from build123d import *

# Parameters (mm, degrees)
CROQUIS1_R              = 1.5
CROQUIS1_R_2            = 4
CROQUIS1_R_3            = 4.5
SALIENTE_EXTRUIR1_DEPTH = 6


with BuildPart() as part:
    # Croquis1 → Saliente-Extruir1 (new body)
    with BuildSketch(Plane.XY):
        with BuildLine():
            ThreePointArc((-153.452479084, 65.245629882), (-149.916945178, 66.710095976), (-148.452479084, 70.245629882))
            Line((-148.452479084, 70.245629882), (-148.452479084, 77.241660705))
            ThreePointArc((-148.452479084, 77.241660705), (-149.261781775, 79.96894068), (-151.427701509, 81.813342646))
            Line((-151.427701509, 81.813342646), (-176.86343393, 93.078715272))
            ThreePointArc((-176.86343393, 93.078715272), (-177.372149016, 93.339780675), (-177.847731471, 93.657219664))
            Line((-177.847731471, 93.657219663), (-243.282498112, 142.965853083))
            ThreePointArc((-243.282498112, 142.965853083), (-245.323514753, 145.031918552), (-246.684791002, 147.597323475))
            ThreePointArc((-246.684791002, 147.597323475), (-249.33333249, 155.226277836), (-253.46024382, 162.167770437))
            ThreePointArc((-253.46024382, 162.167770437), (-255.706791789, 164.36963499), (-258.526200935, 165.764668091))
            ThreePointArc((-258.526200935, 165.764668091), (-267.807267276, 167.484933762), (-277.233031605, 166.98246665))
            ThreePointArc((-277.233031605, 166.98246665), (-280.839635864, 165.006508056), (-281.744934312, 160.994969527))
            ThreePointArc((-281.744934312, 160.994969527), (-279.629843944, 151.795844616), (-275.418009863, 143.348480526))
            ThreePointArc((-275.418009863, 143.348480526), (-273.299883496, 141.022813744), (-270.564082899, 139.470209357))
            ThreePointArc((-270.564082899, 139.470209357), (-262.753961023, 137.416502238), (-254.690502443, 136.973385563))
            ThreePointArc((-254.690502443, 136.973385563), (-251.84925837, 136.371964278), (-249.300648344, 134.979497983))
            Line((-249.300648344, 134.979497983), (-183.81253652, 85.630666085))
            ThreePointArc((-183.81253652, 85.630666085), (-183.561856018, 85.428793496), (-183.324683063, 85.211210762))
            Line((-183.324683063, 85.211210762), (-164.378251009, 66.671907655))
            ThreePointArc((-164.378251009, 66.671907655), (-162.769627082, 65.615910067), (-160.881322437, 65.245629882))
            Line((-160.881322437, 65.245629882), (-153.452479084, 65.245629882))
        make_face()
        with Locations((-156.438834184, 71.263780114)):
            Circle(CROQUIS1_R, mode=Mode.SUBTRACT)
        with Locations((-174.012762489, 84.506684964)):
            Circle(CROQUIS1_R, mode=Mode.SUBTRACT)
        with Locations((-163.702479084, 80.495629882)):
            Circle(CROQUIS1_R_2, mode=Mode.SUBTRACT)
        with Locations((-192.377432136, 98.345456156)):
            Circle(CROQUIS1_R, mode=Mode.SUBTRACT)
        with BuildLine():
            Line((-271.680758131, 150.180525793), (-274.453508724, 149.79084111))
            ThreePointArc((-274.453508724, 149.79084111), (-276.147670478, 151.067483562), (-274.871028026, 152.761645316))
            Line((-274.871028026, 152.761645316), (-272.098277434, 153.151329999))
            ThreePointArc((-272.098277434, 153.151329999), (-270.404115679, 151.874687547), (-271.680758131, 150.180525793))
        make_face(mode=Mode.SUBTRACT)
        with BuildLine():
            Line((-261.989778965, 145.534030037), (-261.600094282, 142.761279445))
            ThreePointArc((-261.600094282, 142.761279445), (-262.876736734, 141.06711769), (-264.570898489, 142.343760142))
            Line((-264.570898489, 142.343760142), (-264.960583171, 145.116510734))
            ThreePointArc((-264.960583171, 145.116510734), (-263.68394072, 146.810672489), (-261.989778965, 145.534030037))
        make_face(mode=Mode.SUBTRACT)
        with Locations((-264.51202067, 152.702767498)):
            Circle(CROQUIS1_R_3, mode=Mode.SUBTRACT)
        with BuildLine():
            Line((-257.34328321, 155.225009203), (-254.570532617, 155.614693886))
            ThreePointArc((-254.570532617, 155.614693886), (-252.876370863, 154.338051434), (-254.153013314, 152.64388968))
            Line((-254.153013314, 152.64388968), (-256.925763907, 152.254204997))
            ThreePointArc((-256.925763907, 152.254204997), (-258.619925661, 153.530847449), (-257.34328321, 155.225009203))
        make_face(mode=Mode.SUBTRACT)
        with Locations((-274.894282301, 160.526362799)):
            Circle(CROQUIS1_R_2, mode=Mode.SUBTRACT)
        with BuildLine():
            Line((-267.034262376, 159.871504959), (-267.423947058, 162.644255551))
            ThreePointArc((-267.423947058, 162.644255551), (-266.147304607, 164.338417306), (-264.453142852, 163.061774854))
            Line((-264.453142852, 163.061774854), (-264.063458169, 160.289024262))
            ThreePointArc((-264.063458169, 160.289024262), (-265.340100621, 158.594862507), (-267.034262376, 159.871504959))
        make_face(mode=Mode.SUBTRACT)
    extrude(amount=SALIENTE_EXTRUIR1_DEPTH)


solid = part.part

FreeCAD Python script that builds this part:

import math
import FreeCAD as App
import Part
import Sketcher
from FreeCAD import Vector
Q = App.Units.Quantity

doc = App.newDocument("Part")
body = doc.addObject("PartDesign::Body", "Body")

# Sketch on XY plane
sketch1 = body.newObject("Sketcher::SketchObject", "Sketch")
sketch1.AttachmentSupport = (doc.getObject("XY_Plane"), [""])
sketch1.MapMode = "FlatFace"
sketch1.addGeometry([
    Part.ArcOfCircle(Part.Circle(Vector(-153.5, 70.2, 0), Vector(0, 0, 1), 5), math.radians(-90), math.radians(0)),  # 0
    Part.LineSegment(Vector(-148.5, 70.2, 0), Vector(-148.5, 77.2, 0)),  # 1
    Part.ArcOfCircle(Part.Circle(Vector(-153.5, 77.2, 0), Vector(0, 0, 1), 5), math.radians(0), math.radians(66)),  # 2
    Part.LineSegment(Vector(-151.4, 81.8, 0), Vector(-176.9, 93.1, 0)),  # 3
    Part.ArcOfCircle(Part.Circle(Vector(-174.8, 97.7, 0), Vector(0, 0, 1), 5), math.radians(-127), math.radians(-113.89)),  # 4
    Part.LineSegment(Vector(-177.8, 93.7, 0), Vector(-243.3, 143, 0)),  # 5
    Part.ArcOfCircle(Part.Circle(Vector(-237.3, 151, 0), Vector(0, 0, 1), 10), math.radians(-160), math.radians(-127)),  # 6
    Part.ArcOfCircle(Part.Circle(Vector(-285.6, 138.4, 0), Vector(0, 0, 1), 40), math.radians(13), math.radians(37)),  # 7
    Part.ArcOfCircle(Part.Circle(Vector(-261.5, 156.2, 0), Vector(0, 0, 1), 10), math.radians(37), math.radians(73)),  # 8
    Part.ArcOfCircle(Part.Circle(Vector(-270.4, 127.6, 0), Vector(0, 0, 1), 40), math.radians(73), math.radians(100)),  # 9
    Part.ArcOfCircle(Part.Circle(Vector(-276.8, 162, 0), Vector(0, 0, 1), 5), math.radians(94), math.radians(192)),  # 10
    Part.ArcOfCircle(Part.Circle(Vector(-242, 165.3, 0), Vector(0, 0, 1), 40), math.radians(-174), math.radians(-147)),  # 11
    Part.ArcOfCircle(Part.Circle(Vector(-267.1, 148.8, 0), Vector(0, 0, 1), 10), math.radians(-147), math.radians(-111)),  # 12
    Part.ArcOfCircle(Part.Circle(Vector(-256.5, 176.9, 0), Vector(0, 0, 1), 40), math.radians(-111), math.radians(-87)),  # 13
    Part.ArcOfCircle(Part.Circle(Vector(-255.3, 127, 0), Vector(0, 0, 1), 10), math.radians(53), math.radians(86)),  # 14
    Part.LineSegment(Vector(-249.3, 135, 0), Vector(-183.8, 85.6, 0)),  # 15
    Part.ArcOfCircle(Part.Circle(Vector(-186.8, 81.6, 0), Vector(0, 0, 1), 5), math.radians(45.62), math.radians(53)),  # 16
    Part.LineSegment(Vector(-183.3, 85.2, 0), Vector(-164.4, 66.7, 0)),  # 17
    Part.ArcOfCircle(Part.Circle(Vector(-160.9, 70.2, 0), Vector(0, 0, 1), 5), math.radians(-134), math.radians(-90)),  # 18
    Part.LineSegment(Vector(-160.9, 65.2, 0), Vector(-153.5, 65.2, 0)),  # 19
    Part.Circle(Vector(-156.4, 71.3, 0), Vector(0, 0, 1), 1.5),  # 20
    Part.Circle(Vector(-163.7, 80.5, 0), Vector(0, 0, 1), 4),  # 21
    Part.Circle(Vector(-174, 84.5, 0), Vector(0, 0, 1), 1.5),  # 22
    Part.Circle(Vector(-192.4, 98.3, 0), Vector(0, 0, 1), 1.5),  # 23
    Part.ArcOfCircle(Part.Circle(Vector(-271.9, 151.7, 0), Vector(0, 0, 1), 1.5), math.radians(-82), math.radians(98)),  # 24
    Part.LineSegment(Vector(-271.7, 150.2, 0), Vector(-274.5, 149.8, 0)),  # 25
    Part.ArcOfCircle(Part.Circle(Vector(-274.7, 151.3, 0), Vector(0, 0, 1), 1.5), math.radians(98), math.radians(278)),  # 26
    Part.LineSegment(Vector(-274.9, 152.8, 0), Vector(-272.1, 153.2, 0)),  # 27
    Part.ArcOfCircle(Part.Circle(Vector(-263.5, 145.3, 0), Vector(0, 0, 1), 1.5), math.radians(8), math.radians(188)),  # 28
    Part.LineSegment(Vector(-262, 145.5, 0), Vector(-261.6, 142.8, 0)),  # 29
    Part.ArcOfCircle(Part.Circle(Vector(-263.1, 142.6, 0), Vector(0, 0, 1), 1.5), math.radians(-172), math.radians(8)),  # 30
    Part.LineSegment(Vector(-264.6, 142.3, 0), Vector(-265, 145.1, 0)),  # 31
    Part.Circle(Vector(-264.5, 152.7, 0), Vector(0, 0, 1), 4.5),  # 32
    Part.Circle(Vector(-274.9, 160.5, 0), Vector(0, 0, 1), 4),  # 33
    Part.ArcOfCircle(Part.Circle(Vector(-265.5, 160.1, 0), Vector(0, 0, 1), 1.5), math.radians(-172), math.radians(8)),  # 34
    Part.LineSegment(Vector(-267, 159.9, 0), Vector(-267.4, 162.6, 0)),  # 35
    Part.ArcOfCircle(Part.Circle(Vector(-265.9, 162.9, 0), Vector(0, 0, 1), 1.5), math.radians(8), math.radians(188)),  # 36
    Part.LineSegment(Vector(-264.5, 163.1, 0), Vector(-264.1, 160.3, 0)),  # 37
    Part.ArcOfCircle(Part.Circle(Vector(-257.1, 153.7, 0), Vector(0, 0, 1), 1.5), math.radians(98), math.radians(278)),  # 38
    Part.LineSegment(Vector(-257.3, 155.2, 0), Vector(-254.6, 155.6, 0)),  # 39
    Part.ArcOfCircle(Part.Circle(Vector(-254.4, 154.1, 0), Vector(0, 0, 1), 1.5), math.radians(-82), math.radians(98)),  # 40
    Part.LineSegment(Vector(-254.2, 152.6, 0), Vector(-256.9, 152.3, 0)),  # 41
], False)
sketch1.addConstraint([
    Sketcher.Constraint("Tangent", 0, 2, 1, 1),
    Sketcher.Constraint("Tangent", 1, 2, 2, 1),
    Sketcher.Constraint("Tangent", 2, 2, 3, 1),
    Sketcher.Constraint("Tangent", 3, 2, 4, 2),
    Sketcher.Constraint("Tangent", 4, 1, 5, 1),
    Sketcher.Constraint("Tangent", 5, 2, 6, 2),
    Sketcher.Constraint("Coincident", 6, 1, 7, 1),
    Sketcher.Constraint("Tangent", 7, 2, 8, 1),
    Sketcher.Constraint("Tangent", 8, 2, 9, 1),
    Sketcher.Constraint("Coincident", 9, 2, 10, 1),
    Sketcher.Constraint("Coincident", 10, 2, 11, 1),
    Sketcher.Constraint("Tangent", 11, 2, 12, 1),
    Sketcher.Constraint("Tangent", 12, 2, 13, 1),
    Sketcher.Constraint("Coincident", 13, 2, 14, 2),
    Sketcher.Constraint("Tangent", 14, 1, 15, 1),
    Sketcher.Constraint("Tangent", 15, 2, 16, 2),
    Sketcher.Constraint("Tangent", 16, 1, 17, 1),
    Sketcher.Constraint("Tangent", 17, 2, 18, 1),
    Sketcher.Constraint("Tangent", 18, 2, 19, 1),
    Sketcher.Constraint("Tangent", 19, 2, 0, 1),
    Sketcher.Constraint("Tangent", 24, 1, 25, 1),
    Sketcher.Constraint("Tangent", 25, 2, 26, 2),
    Sketcher.Constraint("Tangent", 26, 1, 27, 1),
    Sketcher.Constraint("Tangent", 27, 2, 24, 2),
    Sketcher.Constraint("Tangent", 28, 1, 29, 1),
    Sketcher.Constraint("Tangent", 29, 2, 30, 2),
    Sketcher.Constraint("Tangent", 30, 1, 31, 1),
    Sketcher.Constraint("Tangent", 31, 2, 28, 2),
    Sketcher.Constraint("Tangent", 34, 1, 35, 1),
    Sketcher.Constraint("Tangent", 35, 2, 36, 2),
    Sketcher.Constraint("Tangent", 36, 1, 37, 1),
    Sketcher.Constraint("Tangent", 37, 2, 34, 2),
    Sketcher.Constraint("Tangent", 38, 1, 39, 1),
    Sketcher.Constraint("Tangent", 39, 2, 40, 2),
    Sketcher.Constraint("Tangent", 40, 1, 41, 1),
    Sketcher.Constraint("Tangent", 41, 2, 38, 2),
    Sketcher.Constraint("Vertical", 1),
    Sketcher.Constraint("Horizontal", 19),
    Sketcher.Constraint("Equal", 0, 2),
    Sketcher.Constraint("Equal", 2, 4),
    Sketcher.Constraint("Equal", 6, 8),
    Sketcher.Constraint("Equal", 7, 9),
    Sketcher.Constraint("Equal", 4, 10),
    Sketcher.Constraint("Equal", 9, 11),
    Sketcher.Constraint("Equal", 8, 12),
    Sketcher.Constraint("Equal", 11, 13),
    Sketcher.Constraint("Equal", 12, 14),
    Sketcher.Constraint("Equal", 10, 16),
    Sketcher.Constraint("Equal", 16, 18),
    Sketcher.Constraint("Equal", 20, 22),
    Sketcher.Constraint("Equal", 22, 23),
    Sketcher.Constraint("Equal", 23, 24),
    Sketcher.Constraint("Equal", 24, 26),
    Sketcher.Constraint("Equal", 26, 28),
    Sketcher.Constraint("Equal", 28, 30),
    Sketcher.Constraint("Equal", 21, 33),
    Sketcher.Constraint("Equal", 30, 34),
    Sketcher.Constraint("Equal", 34, 36),
    Sketcher.Constraint("Equal", 36, 38),
    Sketcher.Constraint("Equal", 38, 40),
    Sketcher.Constraint("Parallel", 5, 15),
    Sketcher.Constraint("Perpendicular", 27, 29),
    Sketcher.Constraint("Parallel", 31, 35),
    Sketcher.Constraint("Perpendicular", 37, 39),
    Sketcher.Constraint("Equal", 27, 29),
    Sketcher.Constraint("Equal", 31, 35),
    Sketcher.Constraint("Equal", 37, 39),
    Sketcher.Constraint("Diameter", 20, Q("3 mm")),
    Sketcher.Constraint("Diameter", 21, Q("8 mm")),
    Sketcher.Constraint("Diameter", 32, Q("9 mm")),
    Sketcher.Constraint("Radius", 0, Q("5 mm")),
    Sketcher.Constraint("Radius", 6, Q("10 mm")),
    Sketcher.Constraint("Radius", 7, Q("40 mm")),
    Sketcher.Constraint("Angle", 5, Q("143 deg")),
    Sketcher.Constraint("Angle", 25, Q("-172 deg")),
    Sketcher.Constraint("Distance", 15, Q("82 mm")),
    Sketcher.Constraint("Distance", 25, Q("2.8 mm")),
    Sketcher.Constraint("DistanceY", 1, 1, 1, 2, Q("6.996031 mm")),
    Sketcher.Constraint("DistanceX", 14, 3, -1, 1, Q("255.318799 mm")),
    Sketcher.Constraint("DistanceX", 2, 2, -1, 1, Q("151.427702 mm")),
    Sketcher.Constraint("DistanceX", 5, 2, -1, 1, Q("243.282498 mm")),
    Sketcher.Constraint("DistanceX", 8, 2, -1, 1, Q("258.526201 mm")),
    Sketcher.Constraint("DistanceX", 30, 1, -1, 1, Q("264.570898 mm")),
    Sketcher.Constraint("Distance", 3, Q("27.81879 mm")),
    Sketcher.Constraint("Distance", 17, Q("26.507981 mm")),
    Sketcher.Constraint("DistanceX", 19, 1, 19, 2, Q("7.428843 mm")),
    Sketcher.Constraint("DistanceX", 0, 3, -1, 1, Q("153.452479 mm")),
    Sketcher.Constraint("DistanceY", -1, 1, 0, 3, Q("70.24563 mm")),
    Sketcher.Constraint("DistanceX", 10, 3, -1, 1, Q("276.846458 mm")),
    Sketcher.Constraint("DistanceY", -1, 1, 13, 3, Q("176.930669 mm")),
    Sketcher.Constraint("DistanceY", -1, 1, 20, 3, Q("71.26378 mm")),
    Sketcher.Constraint("DistanceX", 21, 3, -1, 1, Q("163.702479 mm")),
    Sketcher.Constraint("DistanceY", -1, 1, 21, 3, Q("80.49563 mm")),
    Sketcher.Constraint("DistanceX", 26, 3, -1, 1, Q("274.662268 mm")),
    Sketcher.Constraint("DistanceY", -1, 1, 28, 3, Q("145.32527 mm")),
    Sketcher.Constraint("DistanceX", 32, 3, -1, 1, Q("264.512021 mm")),
    Sketcher.Constraint("DistanceX", 34, 3, -1, 1, Q("265.54886 mm")),
    Sketcher.Constraint("DistanceY", -1, 1, 40, 3, Q("154.129292 mm")),
    Sketcher.Constraint("DistanceX", 6, 1, -1, 1, Q("246.684791 mm")),
    Sketcher.Constraint("DistanceY", -1, 1, 7, 2, Q("162.16777 mm")),
    Sketcher.Constraint("DistanceY", -1, 1, 8, 2, Q("165.764668 mm")),
    Sketcher.Constraint("DistanceX", 9, 2, -1, 1, Q("277.233032 mm")),
    Sketcher.Constraint("DistanceY", -1, 1, 10, 2, Q("160.99497 mm")),
    Sketcher.Constraint("DistanceX", 11, 2, -1, 1, Q("275.41801 mm")),
    Sketcher.Constraint("DistanceY", -1, 1, 11, 2, Q("143.348481 mm")),
    Sketcher.Constraint("DistanceY", -1, 1, 25, 2, Q("149.790841 mm")),
    Sketcher.Constraint("DistanceX", 20, 3, -1, 1, Q("156.438834 mm")),
    Sketcher.Constraint("DistanceX", 22, 3, -1, 1, Q("174.012762 mm")),
    Sketcher.Constraint("DistanceY", -1, 1, 22, 3, Q("84.506685 mm")),
    Sketcher.Constraint("DistanceX", 23, 3, -1, 1, Q("192.377432 mm")),
    Sketcher.Constraint("DistanceY", -1, 1, 23, 3, Q("98.345456 mm")),
    Sketcher.Constraint("DistanceY", -1, 1, 32, 3, Q("152.702767 mm")),
    Sketcher.Constraint("DistanceX", 33, 3, -1, 1, Q("274.894282 mm")),
    Sketcher.Constraint("DistanceY", -1, 1, 33, 3, Q("160.526363 mm")),
    Sketcher.Constraint("DistanceY", -1, 1, 34, 3, Q("160.080265 mm")),
    Sketcher.Constraint("DistanceX", 38, 3, -1, 1, Q("257.134524 mm")),
])
pad1 = body.newObject("PartDesign::Pad", "Pad")
pad1.Profile = sketch1
pad1.Length = 6

doc.recompute()
